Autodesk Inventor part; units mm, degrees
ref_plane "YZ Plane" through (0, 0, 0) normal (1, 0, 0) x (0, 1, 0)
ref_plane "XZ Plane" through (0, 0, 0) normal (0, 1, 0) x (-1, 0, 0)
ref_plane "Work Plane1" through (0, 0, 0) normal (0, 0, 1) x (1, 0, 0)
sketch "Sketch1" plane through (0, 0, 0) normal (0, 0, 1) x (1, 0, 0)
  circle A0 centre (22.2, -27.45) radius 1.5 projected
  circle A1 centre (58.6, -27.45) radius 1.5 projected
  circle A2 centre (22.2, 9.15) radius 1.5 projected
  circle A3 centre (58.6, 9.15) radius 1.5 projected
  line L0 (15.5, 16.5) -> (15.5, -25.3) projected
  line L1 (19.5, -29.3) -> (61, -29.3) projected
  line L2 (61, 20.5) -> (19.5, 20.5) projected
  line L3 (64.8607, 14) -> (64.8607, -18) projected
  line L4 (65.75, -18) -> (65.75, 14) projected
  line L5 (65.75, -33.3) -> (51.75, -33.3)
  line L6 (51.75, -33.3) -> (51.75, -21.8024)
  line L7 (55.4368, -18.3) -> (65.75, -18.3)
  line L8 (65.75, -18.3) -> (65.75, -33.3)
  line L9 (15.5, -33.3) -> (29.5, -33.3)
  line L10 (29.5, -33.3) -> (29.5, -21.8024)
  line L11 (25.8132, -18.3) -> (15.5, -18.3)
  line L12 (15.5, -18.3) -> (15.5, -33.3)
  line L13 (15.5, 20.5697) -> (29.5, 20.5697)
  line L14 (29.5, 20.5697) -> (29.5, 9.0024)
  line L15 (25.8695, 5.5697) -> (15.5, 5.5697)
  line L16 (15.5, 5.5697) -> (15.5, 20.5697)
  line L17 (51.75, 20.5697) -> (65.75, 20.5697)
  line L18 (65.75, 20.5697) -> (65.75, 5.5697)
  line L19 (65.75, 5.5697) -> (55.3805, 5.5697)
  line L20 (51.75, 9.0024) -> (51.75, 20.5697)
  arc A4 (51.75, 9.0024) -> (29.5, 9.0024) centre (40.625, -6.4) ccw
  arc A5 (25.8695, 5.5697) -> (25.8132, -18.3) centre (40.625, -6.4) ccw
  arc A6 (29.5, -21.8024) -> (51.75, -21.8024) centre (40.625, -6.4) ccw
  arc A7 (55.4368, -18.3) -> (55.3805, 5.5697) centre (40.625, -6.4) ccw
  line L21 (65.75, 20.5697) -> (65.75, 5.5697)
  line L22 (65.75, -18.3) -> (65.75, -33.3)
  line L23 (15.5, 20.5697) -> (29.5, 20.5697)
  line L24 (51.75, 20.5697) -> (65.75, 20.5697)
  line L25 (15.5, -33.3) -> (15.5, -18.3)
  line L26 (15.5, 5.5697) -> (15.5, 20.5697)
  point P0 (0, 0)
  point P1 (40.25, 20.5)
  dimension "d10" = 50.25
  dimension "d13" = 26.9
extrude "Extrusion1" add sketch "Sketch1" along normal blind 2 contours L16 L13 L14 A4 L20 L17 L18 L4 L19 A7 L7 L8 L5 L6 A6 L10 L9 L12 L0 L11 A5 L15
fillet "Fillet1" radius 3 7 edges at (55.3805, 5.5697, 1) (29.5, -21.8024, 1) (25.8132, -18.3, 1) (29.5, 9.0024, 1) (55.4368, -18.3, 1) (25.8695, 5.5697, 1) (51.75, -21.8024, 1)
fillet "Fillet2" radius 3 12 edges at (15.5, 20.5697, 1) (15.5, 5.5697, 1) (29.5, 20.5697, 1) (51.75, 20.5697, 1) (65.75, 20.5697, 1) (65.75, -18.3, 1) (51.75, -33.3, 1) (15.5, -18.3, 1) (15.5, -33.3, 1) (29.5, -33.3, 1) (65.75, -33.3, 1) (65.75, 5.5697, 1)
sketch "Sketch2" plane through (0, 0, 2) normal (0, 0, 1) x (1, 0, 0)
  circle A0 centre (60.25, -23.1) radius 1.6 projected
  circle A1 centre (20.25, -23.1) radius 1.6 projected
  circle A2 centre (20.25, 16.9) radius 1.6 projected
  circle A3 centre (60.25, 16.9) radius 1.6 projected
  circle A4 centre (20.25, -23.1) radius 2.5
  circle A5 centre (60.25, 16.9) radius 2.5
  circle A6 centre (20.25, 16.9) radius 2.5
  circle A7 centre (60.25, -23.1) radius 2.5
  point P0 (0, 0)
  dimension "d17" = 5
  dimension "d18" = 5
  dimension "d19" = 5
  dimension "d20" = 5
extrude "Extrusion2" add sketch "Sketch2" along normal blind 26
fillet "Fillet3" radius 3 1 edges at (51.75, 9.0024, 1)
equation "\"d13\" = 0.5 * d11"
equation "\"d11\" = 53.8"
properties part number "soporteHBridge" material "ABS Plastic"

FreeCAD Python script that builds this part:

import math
import FreeCAD as App
import Part
import Sketcher
from FreeCAD import Vector
Q = App.Units.Quantity


def edges_at(feature, points):
    """Names of the edges that pass closest to the given points."""
    edges = feature.Shape.Edges
    near = lambda p: min(range(len(edges)), key=lambda i: edges[i].distToShape(Part.Vertex(*p))[0])
    return sorted({f"Edge{near(p) + 1}" for p in points})

doc = App.newDocument("Part")
body = doc.addObject("PartDesign::Body", "Body")

sketch1 = doc.addObject("Sketcher::SketchObject", "Sketch")
body.addObject(sketch1)
sketch1.AttachmentSupport = (doc.XY_Plane, [""])
sketch1.MapMode = "FlatFace"
sketch1.addGeometry([
    Part.LineSegment(Vector(15.5, 20.6, 0), Vector(15.5, 5.6, 0)),
    Part.LineSegment(Vector(15.5, 5.6, 0), Vector(25.9, 5.6, 0)),
    Part.ArcOfCircle(Part.Circle(Vector(40.6, -6.4, 0), Vector(0, 0, 1), 19), math.radians(141), math.radians(219)),
    Part.LineSegment(Vector(25.8, -18.3, 0), Vector(15.5, -18.3, 0)),
    Part.LineSegment(Vector(15.5, -18.3, 0), Vector(15.5, -33.3, 0)),
    Part.LineSegment(Vector(15.5, -33.3, 0), Vector(29.5, -33.3, 0)),
    Part.LineSegment(Vector(29.5, -33.3, 0), Vector(29.5, -21.8, 0)),
    Part.ArcOfCircle(Part.Circle(Vector(40.6, -6.4, 0), Vector(0, 0, 1), 19), math.radians(-126), math.radians(-54)),
    Part.LineSegment(Vector(51.8, -21.8, 0), Vector(51.8, -33.3, 0)),
    Part.LineSegment(Vector(51.8, -33.3, 0), Vector(65.8, -33.3, 0)),
    Part.LineSegment(Vector(65.8, -33.3, 0), Vector(65.8, -18.3, 0)),
    Part.LineSegment(Vector(65.8, -18.3, 0), Vector(55.4, -18.3, 0)),
    Part.ArcOfCircle(Part.Circle(Vector(40.6, -6.4, 0), Vector(0, 0, 1), 19), math.radians(-39), math.radians(39)),
    Part.LineSegment(Vector(55.4, 5.6, 0), Vector(65.8, 5.6, 0)),
    Part.LineSegment(Vector(65.8, 5.6, 0), Vector(65.8, 20.6, 0)),
    Part.LineSegment(Vector(65.8, 20.6, 0), Vector(51.8, 20.6, 0)),
    Part.LineSegment(Vector(51.8, 20.6, 0), Vector(51.8, 9, 0)),
    Part.ArcOfCircle(Part.Circle(Vector(40.6, -6.4, 0), Vector(0, 0, 1), 19), math.radians(54), math.radians(126)),
    Part.LineSegment(Vector(29.5, 9, 0), Vector(29.5, 20.6, 0)),
    Part.LineSegment(Vector(29.5, 20.6, 0), Vector(15.5, 20.6, 0)),
    Part.Circle(Vector(22.2, -27.4, 0), Vector(0, 0, 1), 1.5),
    Part.Circle(Vector(58.6, -27.4, 0), Vector(0, 0, 1), 1.5),
    Part.Circle(Vector(22.2, 9.2, 0), Vector(0, 0, 1), 1.5),
    Part.Circle(Vector(58.6, 9.2, 0), Vector(0, 0, 1), 1.5),
], False)
sketch1.addConstraint([
    Sketcher.Constraint("Coincident", 0, 2, 1, 1),
    Sketcher.Constraint("Coincident", 1, 2, 2, 1),
    Sketcher.Constraint("Coincident", 2, 2, 3, 1),
    Sketcher.Constraint("Coincident", 3, 2, 4, 1),
    Sketcher.Constraint("Coincident", 4, 2, 5, 1),
    Sketcher.Constraint("Coincident", 5, 2, 6, 1),
    Sketcher.Constraint("Coincident", 6, 2, 7, 1),
    Sketcher.Constraint("Coincident", 7, 2, 8, 1),
    Sketcher.Constraint("Coincident", 8, 2, 9, 1),
    Sketcher.Constraint("Coincident", 9, 2, 10, 1),
    Sketcher.Constraint("Coincident", 10, 2, 11, 1),
    Sketcher.Constraint("Coincident", 11, 2, 12, 1),
    Sketcher.Constraint("Coincident", 12, 2, 13, 1),
    Sketcher.Constraint("Coincident", 13, 2, 14, 1),
    Sketcher.Constraint("Coincident", 14, 2, 15, 1),
    Sketcher.Constraint("Coincident", 15, 2, 16, 1),
    Sketcher.Constraint("Coincident", 16, 2, 17, 1),
    Sketcher.Constraint("Coincident", 17, 2, 18, 1),
    Sketcher.Constraint("Coincident", 18, 2, 19, 1),
    Sketcher.Constraint("Coincident", 19, 2, 0, 1),
    Sketcher.Constraint("Vertical", 0),
    Sketcher.Constraint("Horizontal", 1),
    Sketcher.Constraint("Horizontal", 3),
    Sketcher.Constraint("Vertical", 4),
    Sketcher.Constraint("Horizontal", 5),
    Sketcher.Constraint("Vertical", 6),
    Sketcher.Constraint("Vertical", 8),
    Sketcher.Constraint("Horizontal", 9),
    Sketcher.Constraint("Vertical", 10),
    Sketcher.Constraint("Horizontal", 11),
    Sketcher.Constraint("Horizontal", 13),
    Sketcher.Constraint("Vertical", 14),
    Sketcher.Constraint("Horizontal", 15),
    Sketcher.Constraint("Vertical", 16),
    Sketcher.Constraint("Vertical", 18),
    Sketcher.Constraint("Horizontal", 19),
    Sketcher.Constraint("Coincident", 7, 3, 2, 3),
    Sketcher.Constraint("Coincident", 12, 3, 2, 3),
    Sketcher.Constraint("Coincident", 17, 3, 2, 3),
    Sketcher.Constraint("Equal", 2, 7),
    Sketcher.Constraint("Equal", 7, 12),
    Sketcher.Constraint("Equal", 12, 17),
    Sketcher.Constraint("Equal", 20, 21),
    Sketcher.Constraint("Equal", 21, 22),
    Sketcher.Constraint("Equal", 22, 23),
    Sketcher.Constraint("Horizontal", 20, 3, 21, 3),
    Sketcher.Constraint("Horizontal", 22, 3, 23, 3),
    Sketcher.Constraint("Horizontal", 6, 2, 7, 2),
    Sketcher.Constraint("Horizontal", 5, 2, 8, 2),
    Sketcher.Constraint("Horizontal", 3, 2, 10, 2),
    Sketcher.Constraint("Horizontal", 1, 2, 12, 2),
    Sketcher.Constraint("Horizontal", 16, 2, 17, 2),
    Sketcher.Constraint("Horizontal", 15, 2, 18, 2),
    Sketcher.Constraint("Vertical", 20, 3, 22, 3),
    Sketcher.Constraint("Vertical", 21, 3, 23, 3),
    Sketcher.Constraint("Vertical", 0, 2, 3, 2),
    Sketcher.Constraint("Vertical", 10, 2, 13, 2),
    Sketcher.Constraint("Vertical", 8, 2, 15, 2),
    Sketcher.Constraint("Equal", 5, 9),
    Sketcher.Constraint("Equal", 0, 4),
    Sketcher.Constraint("Diameter", 20, Q("3 mm")),
    Sketcher.Constraint("Radius", 2, Q("19 mm")),
    Sketcher.Constraint("DistanceY", 4, 2, 2, 3, Q("26.9 mm")),
    Sketcher.Constraint("DistanceX", 5, 1, 5, 2, Q("14 mm")),
    Sketcher.Constraint("DistanceY", 0, 2, 0, 1, Q("15 mm")),
    Sketcher.Constraint("DistanceY", 2, 3, -1, 1, Q("6.4 mm")),
    Sketcher.Constraint("DistanceX", -1, 1, 20, 3, Q("22.2 mm")),
    Sketcher.Constraint("DistanceX", -1, 1, 21, 3, Q("58.6 mm")),
    Sketcher.Constraint("DistanceX", -1, 1, 0, 2, Q("15.5 mm")),
    Sketcher.Constraint("DistanceY", 20, 3, 22, 3, Q("36.6 mm")),
    Sketcher.Constraint("DistanceY", 20, 3, -1, 1, Q("27.45 mm")),
    Sketcher.Constraint("DistanceX", -1, 1, 7, 2, Q("51.75 mm")),
    Sketcher.Constraint("DistanceX", 1, 1, 1, 2, Q("10.3695 mm")),
])
pad1 = doc.addObject("PartDesign::Pad", "Pad")
body.addObject(pad1)
pad1.Profile = sketch1
pad1.Length = 2
doc.recompute()

fillet = doc.addObject("PartDesign::Fillet", "Fillet")
body.addObject(fillet)
fillet.Base = (pad1, edges_at(pad1, [
    (55.38, 5.57, 1),
    (29.5, -21.802, 1),
    (25.813, -18.3, 1),
    (29.5, 9.002, 1),
    (55.437, -18.3, 1),
    (25.869, 5.57, 1),
    (51.75, -21.802, 1),
]))
fillet.Radius = 3
doc.recompute()

fillet2 = doc.addObject("PartDesign::Fillet", "Fillet001")
body.addObject(fillet2)
fillet2.Base = (fillet, edges_at(fillet, [
    (15.5, 20.57, 1),
    (15.5, 5.57, 1),
    (29.5, 20.57, 1),
    (51.75, 20.57, 1),
    (65.75, 20.57, 1),
    (65.75, -18.3, 1),
    (51.75, -33.3, 1),
    (15.5, -18.3, 1),
    (15.5, -33.3, 1),
    (29.5, -33.3, 1),
    (65.75, -33.3, 1),
    (65.75, 5.57, 1),
]))
fillet2.Radius = 3

sketch2 = doc.addObject("Sketcher::SketchObject", "Sketch001")
body.addObject(sketch2)
sketch2.AttachmentSupport = (doc.XY_Plane, [""])
sketch2.MapMode = "FlatFace"
sketch2.AttachmentOffset = App.Placement(Vector(0, 0, 2), App.Rotation())
sketch2.addGeometry([
    Part.Circle(Vector(20.2, -23.1, 0), Vector(0, 0, 1), 2.5),
    Part.Circle(Vector(20.2, -23.1, 0), Vector(0, 0, 1), 1.6),
    Part.Circle(Vector(60.2, 16.9, 0), Vector(0, 0, 1), 2.5),
    Part.Circle(Vector(60.2, 16.9, 0), Vector(0, 0, 1), 1.6),
    Part.Circle(Vector(20.2, 16.9, 0), Vector(0, 0, 1), 2.5),
    Part.Circle(Vector(20.2, 16.9, 0), Vector(0, 0, 1), 1.6),
    Part.Circle(Vector(60.2, -23.1, 0), Vector(0, 0, 1), 2.5),
    Part.Circle(Vector(60.2, -23.1, 0), Vector(0, 0, 1), 1.6),
], False)
sketch2.addConstraint([
    Sketcher.Constraint("Coincident", 1, 3, 0, 3),
    Sketcher.Constraint("Coincident", 3, 3, 2, 3),
    Sketcher.Constraint("Coincident", 5, 3, 4, 3),
    Sketcher.Constraint("Coincident", 7, 3, 6, 3),
    Sketcher.Constraint("Equal", 0, 2),
    Sketcher.Constraint("Equal", 1, 3),
    Sketcher.Constraint("Equal", 2, 4),
    Sketcher.Constraint("Equal", 3, 5),
    Sketcher.Constraint("Equal", 4, 6),
    Sketcher.Constraint("Equal", 5, 7),
    Sketcher.Constraint("Horizontal", 3, 3, 4, 3),
    Sketcher.Constraint("Horizontal", 1, 3, 6, 3),
    Sketcher.Constraint("Vertical", 1, 3, 4, 3),
    Sketcher.Constraint("Vertical", 3, 3, 6, 3),
    Sketcher.Constraint("Diameter", 0, Q("5 mm")),
    Sketcher.Constraint("Diameter", 1, Q("3.2 mm")),
    Sketcher.Constraint("DistanceX", 0, 3, 2, 3, Q("40 mm")),
    Sketcher.Constraint("DistanceY", 0, 3, 2, 3, Q("40 mm")),
    Sketcher.Constraint("DistanceY", 0, 3, -1, 1, Q("23.1 mm")),
    Sketcher.Constraint("DistanceX", -1, 1, 0, 3, Q("20.25 mm")),
])
pad2 = doc.addObject("PartDesign::Pad", "Pad001")
body.addObject(pad2)
pad2.Profile = sketch2
pad2.Length = 26
doc.recompute()

fillet3 = doc.addObject("PartDesign::Fillet", "Fillet002")
body.addObject(fillet3)
fillet3.Base = (pad2, edges_at(pad2, [(51.75, 9.002, 1)]))
fillet3.Radius = 3

doc.recompute()
